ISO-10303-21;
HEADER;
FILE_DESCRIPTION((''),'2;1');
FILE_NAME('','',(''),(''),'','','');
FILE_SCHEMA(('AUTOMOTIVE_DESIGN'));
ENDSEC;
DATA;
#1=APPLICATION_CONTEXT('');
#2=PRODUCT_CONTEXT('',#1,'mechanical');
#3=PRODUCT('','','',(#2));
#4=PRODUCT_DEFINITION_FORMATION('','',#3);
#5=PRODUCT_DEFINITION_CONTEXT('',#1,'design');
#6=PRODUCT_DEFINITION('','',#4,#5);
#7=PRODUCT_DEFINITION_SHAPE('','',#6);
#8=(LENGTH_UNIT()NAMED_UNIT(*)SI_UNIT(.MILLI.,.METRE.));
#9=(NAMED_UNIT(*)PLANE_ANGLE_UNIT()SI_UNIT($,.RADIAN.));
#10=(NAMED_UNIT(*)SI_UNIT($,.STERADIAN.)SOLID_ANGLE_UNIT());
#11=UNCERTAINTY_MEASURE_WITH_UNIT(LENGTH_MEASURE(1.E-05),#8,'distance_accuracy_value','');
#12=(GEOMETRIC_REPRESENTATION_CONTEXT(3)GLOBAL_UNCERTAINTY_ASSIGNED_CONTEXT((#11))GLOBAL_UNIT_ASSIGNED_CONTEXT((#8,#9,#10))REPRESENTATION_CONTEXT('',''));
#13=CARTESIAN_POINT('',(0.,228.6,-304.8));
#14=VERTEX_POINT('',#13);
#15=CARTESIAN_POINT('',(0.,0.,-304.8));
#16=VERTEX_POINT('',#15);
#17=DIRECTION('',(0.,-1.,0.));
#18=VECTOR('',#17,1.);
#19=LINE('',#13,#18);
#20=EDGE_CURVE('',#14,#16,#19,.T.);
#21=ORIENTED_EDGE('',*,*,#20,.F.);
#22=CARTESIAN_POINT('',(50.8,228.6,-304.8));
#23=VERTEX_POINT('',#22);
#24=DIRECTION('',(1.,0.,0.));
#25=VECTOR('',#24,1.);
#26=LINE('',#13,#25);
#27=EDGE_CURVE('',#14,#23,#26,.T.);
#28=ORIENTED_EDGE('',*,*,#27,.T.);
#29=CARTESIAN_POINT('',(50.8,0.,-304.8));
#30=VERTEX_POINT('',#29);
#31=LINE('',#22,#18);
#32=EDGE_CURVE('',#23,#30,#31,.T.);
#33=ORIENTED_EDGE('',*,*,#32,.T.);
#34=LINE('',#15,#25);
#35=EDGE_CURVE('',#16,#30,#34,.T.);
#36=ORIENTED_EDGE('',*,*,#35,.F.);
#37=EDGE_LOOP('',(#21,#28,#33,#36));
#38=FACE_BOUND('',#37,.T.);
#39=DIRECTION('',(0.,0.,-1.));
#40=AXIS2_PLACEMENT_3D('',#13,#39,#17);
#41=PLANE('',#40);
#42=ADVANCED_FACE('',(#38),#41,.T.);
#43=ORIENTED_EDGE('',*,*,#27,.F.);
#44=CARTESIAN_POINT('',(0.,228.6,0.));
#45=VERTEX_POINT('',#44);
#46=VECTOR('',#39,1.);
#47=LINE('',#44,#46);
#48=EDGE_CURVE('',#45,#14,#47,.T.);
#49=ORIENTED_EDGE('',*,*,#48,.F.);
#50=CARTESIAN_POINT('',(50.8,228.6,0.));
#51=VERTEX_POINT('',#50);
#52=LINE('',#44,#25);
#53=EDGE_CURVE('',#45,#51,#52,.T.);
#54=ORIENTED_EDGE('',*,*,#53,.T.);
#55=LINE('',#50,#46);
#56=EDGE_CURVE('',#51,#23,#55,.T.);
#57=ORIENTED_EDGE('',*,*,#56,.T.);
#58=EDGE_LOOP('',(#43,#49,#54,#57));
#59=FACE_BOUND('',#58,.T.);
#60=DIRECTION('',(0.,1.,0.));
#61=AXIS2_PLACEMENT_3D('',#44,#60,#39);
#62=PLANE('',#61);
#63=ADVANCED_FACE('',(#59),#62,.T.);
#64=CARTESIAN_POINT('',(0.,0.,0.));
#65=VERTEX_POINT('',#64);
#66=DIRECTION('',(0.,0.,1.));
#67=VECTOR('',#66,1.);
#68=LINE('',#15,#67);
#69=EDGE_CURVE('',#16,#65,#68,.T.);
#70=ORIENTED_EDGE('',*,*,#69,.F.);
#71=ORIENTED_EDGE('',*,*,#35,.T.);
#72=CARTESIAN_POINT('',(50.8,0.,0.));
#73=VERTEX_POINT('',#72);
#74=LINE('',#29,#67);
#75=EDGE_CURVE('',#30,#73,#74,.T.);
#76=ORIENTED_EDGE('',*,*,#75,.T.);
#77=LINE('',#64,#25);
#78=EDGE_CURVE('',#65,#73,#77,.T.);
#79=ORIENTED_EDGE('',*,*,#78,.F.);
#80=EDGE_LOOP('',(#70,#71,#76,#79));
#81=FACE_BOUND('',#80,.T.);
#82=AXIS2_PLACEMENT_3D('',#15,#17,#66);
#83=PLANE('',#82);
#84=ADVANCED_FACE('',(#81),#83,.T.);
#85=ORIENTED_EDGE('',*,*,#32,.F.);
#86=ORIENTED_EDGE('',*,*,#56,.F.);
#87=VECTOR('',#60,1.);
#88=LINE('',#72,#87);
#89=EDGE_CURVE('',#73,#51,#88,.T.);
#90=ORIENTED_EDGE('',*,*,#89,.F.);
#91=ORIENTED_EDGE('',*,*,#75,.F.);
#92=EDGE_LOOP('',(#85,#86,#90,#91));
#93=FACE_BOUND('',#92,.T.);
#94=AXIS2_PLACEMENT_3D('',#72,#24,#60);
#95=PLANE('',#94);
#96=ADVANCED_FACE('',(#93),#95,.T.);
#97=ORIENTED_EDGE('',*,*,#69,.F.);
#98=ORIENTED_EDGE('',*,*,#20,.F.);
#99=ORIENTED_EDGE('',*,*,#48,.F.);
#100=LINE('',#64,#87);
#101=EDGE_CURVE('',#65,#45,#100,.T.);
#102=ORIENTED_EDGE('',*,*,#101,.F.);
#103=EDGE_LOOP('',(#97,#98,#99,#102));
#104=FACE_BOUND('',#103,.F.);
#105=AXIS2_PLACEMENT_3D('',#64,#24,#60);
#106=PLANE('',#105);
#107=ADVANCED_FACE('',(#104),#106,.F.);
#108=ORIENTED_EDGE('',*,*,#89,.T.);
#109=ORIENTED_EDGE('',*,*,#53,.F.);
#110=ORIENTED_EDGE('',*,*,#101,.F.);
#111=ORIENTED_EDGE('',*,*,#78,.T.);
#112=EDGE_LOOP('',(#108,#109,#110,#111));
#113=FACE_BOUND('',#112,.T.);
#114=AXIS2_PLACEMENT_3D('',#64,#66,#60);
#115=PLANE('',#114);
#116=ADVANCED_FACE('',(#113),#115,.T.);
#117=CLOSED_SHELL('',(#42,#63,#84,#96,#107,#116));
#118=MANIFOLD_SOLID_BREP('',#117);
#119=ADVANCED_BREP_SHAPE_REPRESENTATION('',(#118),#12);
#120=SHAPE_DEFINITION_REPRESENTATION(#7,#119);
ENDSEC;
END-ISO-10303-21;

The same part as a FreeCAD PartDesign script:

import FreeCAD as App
import Part
import Sketcher

V = App.Vector
Q = App.Units.Quantity

doc = App.newDocument("Part")
body = doc.addObject("PartDesign::Body", "Body")

# Sketch on YZ plane
sketch1 = body.newObject("Sketcher::SketchObject", "Sketch")
sketch1.AttachmentSupport = (doc.getObject("YZ_Plane"), [""])
sketch1.MapMode = "FlatFace"
sketch1.addGeometry([
    Part.LineSegment(V(229, 0, 0), V(0, 0, 0)),
    Part.LineSegment(V(0, 0, 0), V(0, -305, 0)),
    Part.LineSegment(V(0, -305, 0), V(229, -305, 0)),
    Part.LineSegment(V(229, -305, 0), V(229, 0, 0)),
], False)
sketch1.addConstraint([
    Sketcher.Constraint("Coincident", 0, 2, 1, 1),
    Sketcher.Constraint("Coincident", 1, 2, 2, 1),
    Sketcher.Constraint("Coincident", 2, 2, 3, 1),
    Sketcher.Constraint("Coincident", 3, 2, 0, 1),
    Sketcher.Constraint("Horizontal", 0),
    Sketcher.Constraint("Vertical", 1),
    Sketcher.Constraint("Horizontal", 2),
    Sketcher.Constraint("Vertical", 3),
    Sketcher.Constraint("Coincident", 0, 2, -1, 1),
    Sketcher.Constraint("DistanceX", 0, 2, 0, 1, Q("9 in")),
    Sketcher.Constraint("DistanceY", 1, 2, 1, 1, Q("12 in")),
])
pad1 = body.newObject("PartDesign::Pad", "Pad")
pad1.Profile = sketch1
pad1.Length = Q("2 in")

doc.recompute()
